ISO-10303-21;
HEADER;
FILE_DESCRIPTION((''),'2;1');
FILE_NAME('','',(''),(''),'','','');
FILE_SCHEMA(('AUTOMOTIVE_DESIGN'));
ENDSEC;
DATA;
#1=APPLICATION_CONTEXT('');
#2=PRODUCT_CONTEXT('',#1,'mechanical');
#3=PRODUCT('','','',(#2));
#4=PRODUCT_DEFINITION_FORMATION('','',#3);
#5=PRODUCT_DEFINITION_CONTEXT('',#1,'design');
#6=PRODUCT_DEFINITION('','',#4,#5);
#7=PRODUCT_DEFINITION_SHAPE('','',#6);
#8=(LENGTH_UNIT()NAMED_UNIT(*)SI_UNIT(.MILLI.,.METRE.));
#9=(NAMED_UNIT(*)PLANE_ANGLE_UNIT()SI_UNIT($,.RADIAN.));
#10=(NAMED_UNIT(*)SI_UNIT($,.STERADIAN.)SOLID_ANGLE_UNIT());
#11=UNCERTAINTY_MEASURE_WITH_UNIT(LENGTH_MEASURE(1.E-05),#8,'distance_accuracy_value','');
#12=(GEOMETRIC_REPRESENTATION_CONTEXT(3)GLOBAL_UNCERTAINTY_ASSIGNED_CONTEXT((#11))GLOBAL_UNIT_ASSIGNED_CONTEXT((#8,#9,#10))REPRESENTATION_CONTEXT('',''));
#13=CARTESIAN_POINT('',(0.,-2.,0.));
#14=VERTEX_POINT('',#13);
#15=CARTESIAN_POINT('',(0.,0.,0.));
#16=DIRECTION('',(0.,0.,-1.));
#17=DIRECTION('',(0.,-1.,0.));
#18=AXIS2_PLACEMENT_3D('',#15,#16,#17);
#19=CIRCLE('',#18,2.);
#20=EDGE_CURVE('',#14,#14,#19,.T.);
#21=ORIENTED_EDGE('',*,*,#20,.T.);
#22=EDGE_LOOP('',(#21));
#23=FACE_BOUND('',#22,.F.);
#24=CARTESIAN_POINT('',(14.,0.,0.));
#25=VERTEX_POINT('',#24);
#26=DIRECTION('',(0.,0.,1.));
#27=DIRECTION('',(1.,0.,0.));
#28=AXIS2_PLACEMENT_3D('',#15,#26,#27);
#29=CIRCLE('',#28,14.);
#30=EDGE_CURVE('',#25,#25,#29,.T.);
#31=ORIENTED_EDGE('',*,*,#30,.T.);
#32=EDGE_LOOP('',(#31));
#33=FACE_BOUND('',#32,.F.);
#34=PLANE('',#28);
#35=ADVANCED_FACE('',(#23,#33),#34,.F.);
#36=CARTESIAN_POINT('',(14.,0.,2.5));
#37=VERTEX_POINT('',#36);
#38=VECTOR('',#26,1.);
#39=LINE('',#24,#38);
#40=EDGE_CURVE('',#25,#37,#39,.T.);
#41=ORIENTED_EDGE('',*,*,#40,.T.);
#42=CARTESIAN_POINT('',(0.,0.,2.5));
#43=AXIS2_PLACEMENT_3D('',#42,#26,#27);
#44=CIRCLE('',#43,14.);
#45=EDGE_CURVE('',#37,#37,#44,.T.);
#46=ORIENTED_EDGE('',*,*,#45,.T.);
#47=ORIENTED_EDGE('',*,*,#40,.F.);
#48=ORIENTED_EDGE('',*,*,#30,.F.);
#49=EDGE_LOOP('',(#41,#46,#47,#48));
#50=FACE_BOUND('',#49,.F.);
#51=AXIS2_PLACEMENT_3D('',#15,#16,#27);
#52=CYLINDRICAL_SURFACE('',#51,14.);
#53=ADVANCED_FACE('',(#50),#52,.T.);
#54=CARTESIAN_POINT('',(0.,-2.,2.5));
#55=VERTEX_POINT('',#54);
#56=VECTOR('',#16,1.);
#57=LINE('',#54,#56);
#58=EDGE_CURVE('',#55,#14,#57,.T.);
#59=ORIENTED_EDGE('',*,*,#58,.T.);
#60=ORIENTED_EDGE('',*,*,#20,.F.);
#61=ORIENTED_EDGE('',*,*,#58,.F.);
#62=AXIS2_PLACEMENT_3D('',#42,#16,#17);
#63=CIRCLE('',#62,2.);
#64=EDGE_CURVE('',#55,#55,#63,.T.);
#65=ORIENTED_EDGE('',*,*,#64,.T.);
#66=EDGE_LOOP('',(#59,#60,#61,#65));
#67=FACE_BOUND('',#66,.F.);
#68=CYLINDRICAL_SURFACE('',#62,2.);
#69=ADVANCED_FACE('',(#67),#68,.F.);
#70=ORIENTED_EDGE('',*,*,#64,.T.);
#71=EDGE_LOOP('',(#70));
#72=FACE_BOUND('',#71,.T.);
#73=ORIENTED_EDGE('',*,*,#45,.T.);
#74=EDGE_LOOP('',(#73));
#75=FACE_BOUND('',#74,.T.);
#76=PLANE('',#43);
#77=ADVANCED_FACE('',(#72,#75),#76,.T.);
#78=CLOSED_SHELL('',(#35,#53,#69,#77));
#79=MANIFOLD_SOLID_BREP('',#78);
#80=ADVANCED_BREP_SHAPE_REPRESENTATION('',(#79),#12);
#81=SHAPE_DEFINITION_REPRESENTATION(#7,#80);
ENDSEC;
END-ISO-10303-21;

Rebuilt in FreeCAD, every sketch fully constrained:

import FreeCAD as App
import Part
import Sketcher

V = App.Vector

doc = App.newDocument("Part")
body = doc.addObject("PartDesign::Body", "Body")

sketch1 = doc.addObject("Sketcher::SketchObject", "Sketch")
body.addObject(sketch1)
sketch1.AttachmentSupport = (doc.XY_Plane, [""])
sketch1.MapMode = "FlatFace"
sketch1.addGeometry(Part.Circle(V(0, 0, 0), V(0, 0, 1), 14), False)
sketch1.addConstraint(Sketcher.Constraint("Coincident", 0, 3, -1, 1))
sketch1.addConstraint(Sketcher.Constraint("Diameter", 0, 28.0))
pad1 = doc.addObject("PartDesign::Pad", "Pad")
body.addObject(pad1)
pad1.Profile = sketch1
pad1.Length = 2.5

sketch2 = doc.addObject("Sketcher::SketchObject", "Sketch001")
body.addObject(sketch2)
sketch2.AttachmentSupport = (doc.XY_Plane, [""])
sketch2.MapMode = "FlatFace"
sketch2.AttachmentOffset = App.Placement(V(0, 0, 2.5), App.Rotation())
sketch2.addGeometry(Part.Circle(V(0, 0, 0), V(0, 0, 1), 2), False)
sketch2.addConstraint(Sketcher.Constraint("Coincident", 0, 3, -1, 1))
sketch2.addConstraint(Sketcher.Constraint("Diameter", 0, 4.0))
doc.recompute()
hole = doc.addObject("PartDesign::Hole", "Hole")
body.addObject(hole)
hole.Profile = sketch2
hole.ThreadType = "None"
hole.Diameter = 4
hole.DepthType = "ThroughAll"

doc.recompute()
